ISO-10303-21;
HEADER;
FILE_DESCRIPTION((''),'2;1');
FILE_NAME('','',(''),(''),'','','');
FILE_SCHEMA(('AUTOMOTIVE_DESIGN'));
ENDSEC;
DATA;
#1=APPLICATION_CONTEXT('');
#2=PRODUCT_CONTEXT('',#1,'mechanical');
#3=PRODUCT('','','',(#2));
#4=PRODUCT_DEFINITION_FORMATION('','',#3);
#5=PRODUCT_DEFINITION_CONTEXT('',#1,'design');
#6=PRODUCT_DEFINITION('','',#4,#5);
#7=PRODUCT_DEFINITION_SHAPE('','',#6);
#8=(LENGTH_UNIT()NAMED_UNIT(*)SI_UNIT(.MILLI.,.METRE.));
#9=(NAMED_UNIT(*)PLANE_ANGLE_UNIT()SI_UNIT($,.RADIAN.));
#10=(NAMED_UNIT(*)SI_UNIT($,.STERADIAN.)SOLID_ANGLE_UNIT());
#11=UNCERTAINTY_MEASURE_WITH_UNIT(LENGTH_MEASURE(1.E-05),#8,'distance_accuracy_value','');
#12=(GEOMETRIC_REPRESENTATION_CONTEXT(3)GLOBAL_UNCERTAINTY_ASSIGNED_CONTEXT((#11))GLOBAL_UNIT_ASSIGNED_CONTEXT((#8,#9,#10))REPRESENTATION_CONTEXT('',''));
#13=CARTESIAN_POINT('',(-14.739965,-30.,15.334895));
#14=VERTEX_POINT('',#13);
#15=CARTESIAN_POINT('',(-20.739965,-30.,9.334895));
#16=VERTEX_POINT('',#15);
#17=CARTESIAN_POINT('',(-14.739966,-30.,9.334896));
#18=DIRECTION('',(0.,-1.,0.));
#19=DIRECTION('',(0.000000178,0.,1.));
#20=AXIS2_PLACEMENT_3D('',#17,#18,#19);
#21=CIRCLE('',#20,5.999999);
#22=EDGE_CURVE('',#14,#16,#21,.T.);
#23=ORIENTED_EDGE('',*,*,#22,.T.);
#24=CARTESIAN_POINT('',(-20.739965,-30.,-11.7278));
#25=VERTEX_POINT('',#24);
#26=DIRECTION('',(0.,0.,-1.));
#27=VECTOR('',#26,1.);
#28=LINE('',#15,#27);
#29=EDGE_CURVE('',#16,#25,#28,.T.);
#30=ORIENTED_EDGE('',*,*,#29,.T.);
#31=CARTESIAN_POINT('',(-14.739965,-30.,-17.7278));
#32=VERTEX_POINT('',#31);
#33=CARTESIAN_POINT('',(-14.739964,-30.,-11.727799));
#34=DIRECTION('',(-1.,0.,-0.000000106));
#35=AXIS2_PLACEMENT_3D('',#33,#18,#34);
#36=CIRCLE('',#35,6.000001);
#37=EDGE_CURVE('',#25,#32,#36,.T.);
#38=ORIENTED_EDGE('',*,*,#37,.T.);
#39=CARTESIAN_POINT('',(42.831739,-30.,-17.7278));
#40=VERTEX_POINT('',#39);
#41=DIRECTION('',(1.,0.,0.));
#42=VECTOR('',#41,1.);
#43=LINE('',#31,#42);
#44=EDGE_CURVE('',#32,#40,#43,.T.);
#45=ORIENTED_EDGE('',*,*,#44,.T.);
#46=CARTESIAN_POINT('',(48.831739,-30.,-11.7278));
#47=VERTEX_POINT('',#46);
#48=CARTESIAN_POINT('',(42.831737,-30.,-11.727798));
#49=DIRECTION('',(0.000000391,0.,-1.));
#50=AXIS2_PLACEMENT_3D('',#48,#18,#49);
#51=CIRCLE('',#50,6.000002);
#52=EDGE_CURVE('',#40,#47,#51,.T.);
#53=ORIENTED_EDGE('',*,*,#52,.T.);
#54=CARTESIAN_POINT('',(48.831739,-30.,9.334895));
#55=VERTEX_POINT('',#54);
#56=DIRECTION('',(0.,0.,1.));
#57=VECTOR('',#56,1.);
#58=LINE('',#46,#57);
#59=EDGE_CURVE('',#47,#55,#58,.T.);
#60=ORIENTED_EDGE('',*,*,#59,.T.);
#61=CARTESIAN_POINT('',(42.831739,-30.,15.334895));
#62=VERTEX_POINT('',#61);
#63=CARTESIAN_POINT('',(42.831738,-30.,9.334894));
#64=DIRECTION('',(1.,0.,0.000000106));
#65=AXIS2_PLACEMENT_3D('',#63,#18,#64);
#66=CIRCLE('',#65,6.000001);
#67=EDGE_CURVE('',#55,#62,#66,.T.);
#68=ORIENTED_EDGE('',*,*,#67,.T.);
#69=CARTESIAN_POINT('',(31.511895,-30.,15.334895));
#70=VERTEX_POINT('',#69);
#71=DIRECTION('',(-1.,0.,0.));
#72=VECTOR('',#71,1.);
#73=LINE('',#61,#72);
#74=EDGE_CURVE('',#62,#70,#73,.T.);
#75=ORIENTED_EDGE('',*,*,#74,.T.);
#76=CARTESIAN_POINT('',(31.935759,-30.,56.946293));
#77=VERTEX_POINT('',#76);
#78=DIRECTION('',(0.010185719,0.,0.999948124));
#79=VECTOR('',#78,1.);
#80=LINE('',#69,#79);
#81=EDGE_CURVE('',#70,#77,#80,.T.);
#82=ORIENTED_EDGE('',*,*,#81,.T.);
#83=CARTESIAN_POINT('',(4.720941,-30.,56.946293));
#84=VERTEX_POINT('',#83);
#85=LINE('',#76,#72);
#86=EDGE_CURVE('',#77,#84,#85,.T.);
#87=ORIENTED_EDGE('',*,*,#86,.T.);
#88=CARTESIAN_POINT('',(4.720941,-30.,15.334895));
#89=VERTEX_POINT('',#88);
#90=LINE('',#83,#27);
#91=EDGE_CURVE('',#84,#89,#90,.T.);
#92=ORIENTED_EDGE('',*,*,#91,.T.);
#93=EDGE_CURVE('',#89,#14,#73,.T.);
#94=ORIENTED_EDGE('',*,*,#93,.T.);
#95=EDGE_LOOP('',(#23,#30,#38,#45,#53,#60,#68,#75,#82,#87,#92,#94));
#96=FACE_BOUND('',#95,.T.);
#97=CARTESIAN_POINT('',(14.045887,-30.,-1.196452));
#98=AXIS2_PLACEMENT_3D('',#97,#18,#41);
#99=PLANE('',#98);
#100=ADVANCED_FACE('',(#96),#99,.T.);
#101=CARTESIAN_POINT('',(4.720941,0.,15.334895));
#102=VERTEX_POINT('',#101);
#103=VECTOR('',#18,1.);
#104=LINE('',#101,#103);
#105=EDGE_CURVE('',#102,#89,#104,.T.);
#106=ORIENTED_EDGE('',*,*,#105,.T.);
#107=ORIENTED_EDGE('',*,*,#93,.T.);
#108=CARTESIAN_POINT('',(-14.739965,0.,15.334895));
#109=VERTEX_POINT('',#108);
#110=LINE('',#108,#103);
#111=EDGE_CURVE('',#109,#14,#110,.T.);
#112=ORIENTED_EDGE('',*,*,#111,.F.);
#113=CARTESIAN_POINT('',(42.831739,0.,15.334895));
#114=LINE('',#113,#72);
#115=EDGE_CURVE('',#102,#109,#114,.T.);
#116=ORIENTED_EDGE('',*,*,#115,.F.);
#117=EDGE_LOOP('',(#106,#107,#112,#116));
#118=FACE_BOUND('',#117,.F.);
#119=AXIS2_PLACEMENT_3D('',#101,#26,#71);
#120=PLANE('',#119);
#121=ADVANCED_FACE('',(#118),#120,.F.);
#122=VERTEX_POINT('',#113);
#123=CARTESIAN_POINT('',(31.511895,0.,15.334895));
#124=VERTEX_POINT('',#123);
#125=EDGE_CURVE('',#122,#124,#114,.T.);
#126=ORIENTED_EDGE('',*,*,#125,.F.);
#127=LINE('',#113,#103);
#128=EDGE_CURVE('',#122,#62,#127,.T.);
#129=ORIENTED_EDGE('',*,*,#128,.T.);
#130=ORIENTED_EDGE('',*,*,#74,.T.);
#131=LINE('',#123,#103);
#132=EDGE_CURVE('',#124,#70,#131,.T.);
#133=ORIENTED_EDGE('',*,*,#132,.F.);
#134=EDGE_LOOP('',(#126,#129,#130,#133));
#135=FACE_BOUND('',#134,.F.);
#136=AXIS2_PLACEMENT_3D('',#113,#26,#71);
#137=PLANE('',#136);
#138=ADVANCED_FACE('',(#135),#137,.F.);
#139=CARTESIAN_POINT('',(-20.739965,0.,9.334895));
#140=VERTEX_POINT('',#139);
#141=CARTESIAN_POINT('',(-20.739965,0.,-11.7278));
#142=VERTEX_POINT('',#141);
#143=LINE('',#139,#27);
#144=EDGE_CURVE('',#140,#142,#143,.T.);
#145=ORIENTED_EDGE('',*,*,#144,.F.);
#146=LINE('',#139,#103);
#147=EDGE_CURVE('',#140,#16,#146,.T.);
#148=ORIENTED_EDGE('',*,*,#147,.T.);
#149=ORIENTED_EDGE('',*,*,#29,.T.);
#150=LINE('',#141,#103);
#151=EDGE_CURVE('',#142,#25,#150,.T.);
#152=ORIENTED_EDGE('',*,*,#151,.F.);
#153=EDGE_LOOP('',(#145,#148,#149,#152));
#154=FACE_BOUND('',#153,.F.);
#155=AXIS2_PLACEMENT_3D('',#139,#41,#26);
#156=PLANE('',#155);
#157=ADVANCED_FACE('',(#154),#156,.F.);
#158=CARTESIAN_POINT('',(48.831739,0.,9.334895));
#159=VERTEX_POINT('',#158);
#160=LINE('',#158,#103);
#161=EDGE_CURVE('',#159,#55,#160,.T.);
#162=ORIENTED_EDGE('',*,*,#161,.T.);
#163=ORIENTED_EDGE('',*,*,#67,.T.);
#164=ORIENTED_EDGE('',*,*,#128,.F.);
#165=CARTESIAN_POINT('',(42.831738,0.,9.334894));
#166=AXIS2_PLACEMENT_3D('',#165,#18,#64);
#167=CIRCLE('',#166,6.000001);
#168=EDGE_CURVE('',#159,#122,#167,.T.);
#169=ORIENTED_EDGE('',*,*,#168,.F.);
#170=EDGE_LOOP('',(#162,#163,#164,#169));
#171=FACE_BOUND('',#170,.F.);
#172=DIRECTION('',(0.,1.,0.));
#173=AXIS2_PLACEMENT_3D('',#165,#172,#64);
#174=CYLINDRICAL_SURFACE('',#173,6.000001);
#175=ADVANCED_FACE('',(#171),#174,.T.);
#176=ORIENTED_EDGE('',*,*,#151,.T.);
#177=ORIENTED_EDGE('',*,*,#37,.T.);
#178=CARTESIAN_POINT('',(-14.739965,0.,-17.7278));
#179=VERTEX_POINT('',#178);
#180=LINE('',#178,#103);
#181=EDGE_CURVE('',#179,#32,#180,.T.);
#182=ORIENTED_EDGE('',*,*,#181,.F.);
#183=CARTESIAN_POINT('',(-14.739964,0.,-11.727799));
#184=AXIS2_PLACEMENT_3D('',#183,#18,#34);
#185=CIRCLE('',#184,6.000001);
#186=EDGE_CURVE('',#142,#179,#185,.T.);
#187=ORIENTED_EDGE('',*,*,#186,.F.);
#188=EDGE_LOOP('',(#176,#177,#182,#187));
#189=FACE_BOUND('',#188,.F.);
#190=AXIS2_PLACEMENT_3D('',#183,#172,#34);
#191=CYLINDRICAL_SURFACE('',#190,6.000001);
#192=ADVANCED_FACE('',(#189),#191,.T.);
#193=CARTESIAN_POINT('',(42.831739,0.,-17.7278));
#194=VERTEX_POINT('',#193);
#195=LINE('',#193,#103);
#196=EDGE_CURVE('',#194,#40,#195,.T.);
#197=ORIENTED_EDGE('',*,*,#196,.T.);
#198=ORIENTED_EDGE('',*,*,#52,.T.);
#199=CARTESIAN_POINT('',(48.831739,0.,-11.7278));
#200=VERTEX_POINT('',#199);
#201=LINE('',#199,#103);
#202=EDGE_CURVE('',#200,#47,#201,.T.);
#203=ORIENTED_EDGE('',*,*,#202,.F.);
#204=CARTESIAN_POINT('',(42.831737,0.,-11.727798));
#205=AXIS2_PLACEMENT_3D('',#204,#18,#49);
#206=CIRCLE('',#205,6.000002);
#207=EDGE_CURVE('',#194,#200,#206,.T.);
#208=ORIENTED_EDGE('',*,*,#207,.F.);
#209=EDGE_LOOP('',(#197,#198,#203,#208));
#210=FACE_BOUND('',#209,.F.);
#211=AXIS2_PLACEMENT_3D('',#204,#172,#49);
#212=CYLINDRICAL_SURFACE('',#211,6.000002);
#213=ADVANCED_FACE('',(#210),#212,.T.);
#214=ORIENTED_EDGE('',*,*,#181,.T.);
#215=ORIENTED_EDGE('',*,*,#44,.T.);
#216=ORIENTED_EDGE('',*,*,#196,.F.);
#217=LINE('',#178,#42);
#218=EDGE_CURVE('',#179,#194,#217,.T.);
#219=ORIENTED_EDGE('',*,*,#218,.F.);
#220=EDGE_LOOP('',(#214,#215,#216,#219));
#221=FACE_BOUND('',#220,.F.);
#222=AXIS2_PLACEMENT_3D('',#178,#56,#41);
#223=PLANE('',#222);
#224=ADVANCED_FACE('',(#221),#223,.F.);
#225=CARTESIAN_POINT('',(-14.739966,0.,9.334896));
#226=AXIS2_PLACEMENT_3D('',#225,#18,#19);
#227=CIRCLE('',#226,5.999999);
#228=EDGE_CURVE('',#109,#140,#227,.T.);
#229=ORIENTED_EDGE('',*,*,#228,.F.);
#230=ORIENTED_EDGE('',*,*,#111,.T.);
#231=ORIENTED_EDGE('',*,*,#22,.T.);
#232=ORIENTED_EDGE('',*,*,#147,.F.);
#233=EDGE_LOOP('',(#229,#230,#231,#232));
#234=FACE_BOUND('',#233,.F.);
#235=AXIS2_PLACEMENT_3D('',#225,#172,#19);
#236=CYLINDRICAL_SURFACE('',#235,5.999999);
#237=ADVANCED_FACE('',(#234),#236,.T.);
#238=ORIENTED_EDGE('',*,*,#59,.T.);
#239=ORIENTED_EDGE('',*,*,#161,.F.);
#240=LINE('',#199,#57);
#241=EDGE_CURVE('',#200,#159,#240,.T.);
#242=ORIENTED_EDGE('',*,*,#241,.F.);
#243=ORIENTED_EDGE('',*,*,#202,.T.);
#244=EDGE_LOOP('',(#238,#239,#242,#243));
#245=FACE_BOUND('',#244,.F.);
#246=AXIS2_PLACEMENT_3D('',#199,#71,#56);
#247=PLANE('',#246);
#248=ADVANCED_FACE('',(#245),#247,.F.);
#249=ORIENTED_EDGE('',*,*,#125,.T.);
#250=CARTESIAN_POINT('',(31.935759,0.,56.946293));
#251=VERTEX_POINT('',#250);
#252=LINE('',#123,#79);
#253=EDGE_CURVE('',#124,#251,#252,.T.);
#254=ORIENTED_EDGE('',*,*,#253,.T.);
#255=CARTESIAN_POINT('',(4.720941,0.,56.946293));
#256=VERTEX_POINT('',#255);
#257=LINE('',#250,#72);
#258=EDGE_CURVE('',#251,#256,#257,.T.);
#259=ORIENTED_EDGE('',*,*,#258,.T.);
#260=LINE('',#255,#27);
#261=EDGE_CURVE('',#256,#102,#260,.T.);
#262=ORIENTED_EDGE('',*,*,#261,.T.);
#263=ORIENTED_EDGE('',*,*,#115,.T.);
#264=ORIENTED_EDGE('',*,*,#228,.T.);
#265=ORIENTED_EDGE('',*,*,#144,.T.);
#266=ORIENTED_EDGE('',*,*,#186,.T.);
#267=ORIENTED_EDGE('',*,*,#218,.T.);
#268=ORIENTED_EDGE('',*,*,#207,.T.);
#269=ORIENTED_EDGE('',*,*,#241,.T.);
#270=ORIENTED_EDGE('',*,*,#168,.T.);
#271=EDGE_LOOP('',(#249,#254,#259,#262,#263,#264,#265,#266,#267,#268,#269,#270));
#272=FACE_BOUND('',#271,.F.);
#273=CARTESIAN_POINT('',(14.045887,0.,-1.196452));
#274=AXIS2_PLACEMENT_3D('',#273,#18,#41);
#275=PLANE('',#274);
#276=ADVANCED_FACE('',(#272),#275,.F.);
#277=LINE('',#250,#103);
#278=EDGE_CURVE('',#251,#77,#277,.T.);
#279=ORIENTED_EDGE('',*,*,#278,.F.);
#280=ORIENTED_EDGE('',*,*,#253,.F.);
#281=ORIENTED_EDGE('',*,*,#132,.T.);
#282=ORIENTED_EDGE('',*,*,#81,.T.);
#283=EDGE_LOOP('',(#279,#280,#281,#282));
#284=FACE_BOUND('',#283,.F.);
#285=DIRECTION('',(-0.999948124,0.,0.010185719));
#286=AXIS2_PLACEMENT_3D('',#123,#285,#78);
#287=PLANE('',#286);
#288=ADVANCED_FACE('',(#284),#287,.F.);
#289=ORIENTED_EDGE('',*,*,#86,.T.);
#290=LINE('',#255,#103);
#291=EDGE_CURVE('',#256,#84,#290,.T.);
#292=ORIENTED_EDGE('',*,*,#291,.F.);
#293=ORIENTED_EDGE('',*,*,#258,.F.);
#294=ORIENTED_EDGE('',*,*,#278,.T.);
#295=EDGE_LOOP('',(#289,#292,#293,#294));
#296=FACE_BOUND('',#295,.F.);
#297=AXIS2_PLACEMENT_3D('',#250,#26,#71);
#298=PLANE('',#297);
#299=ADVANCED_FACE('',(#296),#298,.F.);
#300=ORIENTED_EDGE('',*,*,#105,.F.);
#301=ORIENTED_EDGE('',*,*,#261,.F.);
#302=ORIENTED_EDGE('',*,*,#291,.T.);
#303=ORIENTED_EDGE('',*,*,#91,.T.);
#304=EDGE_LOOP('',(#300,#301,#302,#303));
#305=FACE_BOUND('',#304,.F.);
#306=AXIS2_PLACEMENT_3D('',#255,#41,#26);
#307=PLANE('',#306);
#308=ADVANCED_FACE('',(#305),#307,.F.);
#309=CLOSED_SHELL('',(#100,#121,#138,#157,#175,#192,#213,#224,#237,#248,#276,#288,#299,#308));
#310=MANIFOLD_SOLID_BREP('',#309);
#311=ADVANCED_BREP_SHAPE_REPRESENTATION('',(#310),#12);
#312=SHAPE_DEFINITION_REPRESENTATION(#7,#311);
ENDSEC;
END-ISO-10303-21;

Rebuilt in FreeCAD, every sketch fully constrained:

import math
import FreeCAD as App
import Part
import Sketcher
from FreeCAD import Vector

doc = App.newDocument("Part")
params = doc.addObject("Spreadsheet::Sheet", "Params")
for row, (alias, value) in enumerate([
    ("sketch1_radius", "6.000001 mm"),
    ("pad1_length", "30 mm"),
], start=1):
    params.set(f"A{row}", alias)
    params.set(f"B{row}", "=" + value)
    params.setAlias(f"B{row}", alias)

body = doc.addObject("PartDesign::Body", "Body")

sketch1 = body.newObject("Sketcher::SketchObject", "Sketch")
sketch1.AttachmentSupport = (doc.getObject("XZ_Plane"), [""])
sketch1.MapMode = "FlatFace"
sketch1.addGeometry([
    Part.ArcOfCircle(Part.Circle(Vector(-15, -12, 0), Vector(0, 0, 1), 6), math.radians(-180), math.radians(-90)),
    Part.LineSegment(Vector(-15, -18, 0), Vector(43, -18, 0)),
    Part.ArcOfCircle(Part.Circle(Vector(43, -12, 0), Vector(0, 0, 1), 6), math.radians(-90), math.radians(0)),
    Part.LineSegment(Vector(49, -12, 0), Vector(49, 9, 0)),
    Part.ArcOfCircle(Part.Circle(Vector(43, 9, 0), Vector(0, 0, 1), 6), math.radians(0), math.radians(90)),
    Part.LineSegment(Vector(43, 15, 0), Vector(32, 15, 0)),
    Part.LineSegment(Vector(32, 15, 0), Vector(32, 57, 0)),
    Part.LineSegment(Vector(32, 57, 0), Vector(5, 57, 0)),
    Part.LineSegment(Vector(5, 57, 0), Vector(5, 15, 0)),
    Part.LineSegment(Vector(5, 15, 0), Vector(-15, 15, 0)),
    Part.ArcOfCircle(Part.Circle(Vector(-15, 9, 0), Vector(0, 0, 1), 6), math.radians(90), math.radians(180)),
    Part.LineSegment(Vector(-21, 9, 0), Vector(-21, -12, 0)),
], False)
sketch1.addConstraint([
    Sketcher.Constraint("Tangent", 0, 2, 1, 1),
    Sketcher.Constraint("Tangent", 1, 2, 2, 1),
    Sketcher.Constraint("Tangent", 2, 2, 3, 1),
    Sketcher.Constraint("Tangent", 3, 2, 4, 1),
    Sketcher.Constraint("Tangent", 4, 2, 5, 1),
    Sketcher.Constraint("Coincident", 5, 2, 6, 1),
    Sketcher.Constraint("Coincident", 6, 2, 7, 1),
    Sketcher.Constraint("Coincident", 7, 2, 8, 1),
    Sketcher.Constraint("Coincident", 8, 2, 9, 1),
    Sketcher.Constraint("Tangent", 9, 2, 10, 1),
    Sketcher.Constraint("Tangent", 10, 2, 11, 1),
    Sketcher.Constraint("Tangent", 11, 2, 0, 1),
    Sketcher.Constraint("Horizontal", 1),
    Sketcher.Constraint("Vertical", 3),
    Sketcher.Constraint("Horizontal", 5),
    Sketcher.Constraint("Horizontal", 7),
    Sketcher.Constraint("Vertical", 8),
    Sketcher.Constraint("Horizontal", 9),
    Sketcher.Constraint("Vertical", 11),
    Sketcher.Constraint("Equal", 0, 2),
    Sketcher.Constraint("Equal", 2, 4),
    Sketcher.Constraint("Equal", 4, 10),
    Sketcher.Constraint("Horizontal", 4, 3, 10, 3),
    Sketcher.Constraint("Radius", 0, 6.000001),
    Sketcher.Constraint("DistanceX", 7, 2, 7, 1, 27.214818),
    Sketcher.Constraint("DistanceY", 0, 3, -1, 1, 11.727799),
    Sketcher.Constraint("DistanceX", 0, 3, 2, 3, 57.571701),
    Sketcher.Constraint("DistanceY", 4, 2, 6, 2, 41.611398),
    Sketcher.Constraint("DistanceX", 7, 2, 4, 2, 38.110798),
    Sketcher.Constraint("DistanceX", 5, 2, 5, 1, 11.319844),
    Sketcher.Constraint("DistanceY", 3, 1, 3, 2, 21.062695),
    Sketcher.Constraint("DistanceX", -1, 1, 4, 3, 42.831738),
])
sketch1.setExpression("Constraints[23]", "Params.sketch1_radius")
pad1 = body.newObject("PartDesign::Pad", "Pad")
pad1.Profile = sketch1
pad1.setExpression("Length", "Params.pad1_length")

doc.recompute()
